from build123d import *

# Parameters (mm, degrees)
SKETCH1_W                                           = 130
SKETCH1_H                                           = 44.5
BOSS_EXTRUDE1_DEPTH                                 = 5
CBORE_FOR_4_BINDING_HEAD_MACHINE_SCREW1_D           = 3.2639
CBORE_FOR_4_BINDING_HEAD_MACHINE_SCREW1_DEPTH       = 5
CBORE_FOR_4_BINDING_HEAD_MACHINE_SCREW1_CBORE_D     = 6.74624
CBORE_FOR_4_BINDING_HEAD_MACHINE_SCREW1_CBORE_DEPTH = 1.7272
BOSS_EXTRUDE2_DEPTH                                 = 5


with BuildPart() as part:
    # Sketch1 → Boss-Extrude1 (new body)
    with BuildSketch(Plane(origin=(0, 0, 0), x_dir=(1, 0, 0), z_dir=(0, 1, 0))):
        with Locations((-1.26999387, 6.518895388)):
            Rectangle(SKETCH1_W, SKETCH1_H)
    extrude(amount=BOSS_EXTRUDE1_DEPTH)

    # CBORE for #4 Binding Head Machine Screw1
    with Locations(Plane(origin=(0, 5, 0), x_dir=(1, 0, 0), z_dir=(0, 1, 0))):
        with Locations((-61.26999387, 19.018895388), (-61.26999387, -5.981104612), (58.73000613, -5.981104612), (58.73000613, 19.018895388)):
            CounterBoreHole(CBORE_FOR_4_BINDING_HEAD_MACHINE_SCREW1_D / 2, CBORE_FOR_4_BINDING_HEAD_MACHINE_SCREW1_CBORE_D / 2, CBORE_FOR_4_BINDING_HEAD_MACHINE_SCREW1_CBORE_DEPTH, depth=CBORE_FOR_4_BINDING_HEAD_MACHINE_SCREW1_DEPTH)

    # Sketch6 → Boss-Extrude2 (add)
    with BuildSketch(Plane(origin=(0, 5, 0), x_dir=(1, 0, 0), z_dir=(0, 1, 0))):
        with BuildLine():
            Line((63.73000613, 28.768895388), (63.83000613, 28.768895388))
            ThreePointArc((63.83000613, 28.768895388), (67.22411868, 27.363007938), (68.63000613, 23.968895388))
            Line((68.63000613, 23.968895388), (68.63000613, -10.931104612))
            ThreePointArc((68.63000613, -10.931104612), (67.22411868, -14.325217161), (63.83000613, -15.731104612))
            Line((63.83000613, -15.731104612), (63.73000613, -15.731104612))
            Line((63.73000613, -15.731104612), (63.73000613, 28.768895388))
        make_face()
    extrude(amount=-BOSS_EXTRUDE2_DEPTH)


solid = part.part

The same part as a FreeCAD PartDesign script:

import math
import FreeCAD as App
import Part
import Sketcher

V = App.Vector

doc = App.newDocument("Part")
body = doc.addObject("PartDesign::Body", "Body")

# Sketch on XZ plane
sketch1 = body.newObject("Sketcher::SketchObject", "Sketch")
sketch1.AttachmentSupport = (doc.getObject("XZ_Plane"), [""])
sketch1.MapMode = "FlatFace"
sketch1.addGeometry(Part.LineSegment(V(-66, -29, 0), V(-66, 16, 0)), False)
sketch1.addGeometry(Part.LineSegment(V(-66, 16, 0), V(64, 16, 0)), False)
sketch1.addGeometry(Part.LineSegment(V(64, 16, 0), V(64, -29, 0)), False)
sketch1.addGeometry(Part.LineSegment(V(64, -29, 0), V(-66, -29, 0)), False)
sketch1.addConstraint(Sketcher.Constraint("Coincident", 0, 2, 1, 1))
sketch1.addConstraint(Sketcher.Constraint("Coincident", 1, 2, 2, 1))
sketch1.addConstraint(Sketcher.Constraint("Coincident", 2, 2, 3, 1))
sketch1.addConstraint(Sketcher.Constraint("Coincident", 3, 2, 0, 1))
sketch1.addConstraint(Sketcher.Constraint("Vertical", 0))
sketch1.addConstraint(Sketcher.Constraint("Horizontal", 1))
sketch1.addConstraint(Sketcher.Constraint("Vertical", 2))
sketch1.addConstraint(Sketcher.Constraint("Horizontal", 3))
sketch1.addConstraint(Sketcher.Constraint("DistanceX", 1, 1, 1, 2, 130.0))
sketch1.addConstraint(Sketcher.Constraint("DistanceY", 0, 1, 0, 2, 44.5))
sketch1.addConstraint(Sketcher.Constraint("DistanceX", 0, 2, -1, 1, 66.269994))
sketch1.addConstraint(Sketcher.Constraint("DistanceY", -1, 1, 0, 2, 15.731105))
pad1 = body.newObject("PartDesign::Pad", "Pad")
pad1.Profile = sketch1
pad1.Length = 5
pad1.Reversed = True

# Sketch on XZ plane
sketch2 = body.newObject("Sketcher::SketchObject", "Sketch001")
sketch2.AttachmentSupport = (doc.getObject("XZ_Plane"), [""])
sketch2.MapMode = "FlatFace"
sketch2.AttachmentOffset = App.Placement(V(0, 0, -5), App.Rotation())
sketch2.addGeometry(Part.Circle(V(-61.3, -19, 0), V(0, 0, 1), 1.6), False)
sketch2.addGeometry(Part.Circle(V(-61.3, 6, 0), V(0, 0, 1), 1.6), False)
sketch2.addGeometry(Part.Circle(V(58.7, 6, 0), V(0, 0, 1), 1.6), False)
sketch2.addGeometry(Part.Circle(V(58.7, -19, 0), V(0, 0, 1), 1.6), False)
sketch2.addConstraint(Sketcher.Constraint("Equal", 0, 1))
sketch2.addConstraint(Sketcher.Constraint("Equal", 1, 2))
sketch2.addConstraint(Sketcher.Constraint("Equal", 2, 3))
sketch2.addConstraint(Sketcher.Constraint("Horizontal", 1, 3, 2, 3))
sketch2.addConstraint(Sketcher.Constraint("Horizontal", 0, 3, 3, 3))
sketch2.addConstraint(Sketcher.Constraint("Vertical", 0, 3, 1, 3))
sketch2.addConstraint(Sketcher.Constraint("Vertical", 2, 3, 3, 3))
sketch2.addConstraint(Sketcher.Constraint("DistanceY", 0, 3, 1, 3, 25.0))
sketch2.addConstraint(Sketcher.Constraint("DistanceX", 1, 3, 2, 3, 120.0))
sketch2.addConstraint(Sketcher.Constraint("Diameter", 0, 3.2639))
sketch2.addConstraint(Sketcher.Constraint("DistanceX", 0, 3, -1, 1, 61.269994))
sketch2.addConstraint(Sketcher.Constraint("DistanceY", 0, 3, -1, 1, 19.018895))
doc.recompute()
hole = body.newObject("PartDesign::Hole", "Hole")
hole.Profile = sketch2
hole.ThreadType = "None"
hole.Diameter = 3.2639
hole.DepthType = "Dimension"
hole.Depth = 5
hole.DrillPoint = "Flat"
hole.HoleCutType = "Counterbore"
hole.HoleCutDiameter = 6.74624
hole.HoleCutDepth = 1.7272
hole.Reversed = True

# Sketch on XZ plane
sketch3 = body.newObject("Sketcher::SketchObject", "Sketch002")
sketch3.AttachmentSupport = (doc.getObject("XZ_Plane"), [""])
sketch3.MapMode = "FlatFace"
sketch3.AttachmentOffset = App.Placement(V(0, 0, -5), App.Rotation())
sketch3.addGeometry(Part.LineSegment(V(63.83, -28.77, 0), V(63.73, -28.77, 0)), False)
sketch3.addGeometry(Part.LineSegment(V(63.73, -28.77, 0), V(63.73, 15.73, 0)), False)
sketch3.addGeometry(Part.LineSegment(V(63.73, 15.73, 0), V(63.83, 15.73, 0)), False)
sketch3.addGeometry(Part.ArcOfCircle(Part.Circle(V(63.83, 10.93, 0), V(0, 0, 1), 4.8), math.radians(0), math.radians(90)), False)
sketch3.addGeometry(Part.LineSegment(V(68.63, 10.93, 0), V(68.63, -23.97, 0)), False)
sketch3.addGeometry(Part.ArcOfCircle(Part.Circle(V(63.83, -23.97, 0), V(0, 0, 1), 4.8), math.radians(-90), math.radians(0)), False)
sketch3.addConstraint(Sketcher.Constraint("Coincident", 0, 2, 1, 1))
sketch3.addConstraint(Sketcher.Constraint("Coincident", 1, 2, 2, 1))
sketch3.addConstraint(Sketcher.Constraint("Tangent", 2, 2, 3, 2))
sketch3.addConstraint(Sketcher.Constraint("Tangent", 3, 1, 4, 1))
sketch3.addConstraint(Sketcher.Constraint("Tangent", 4, 2, 5, 2))
sketch3.addConstraint(Sketcher.Constraint("Tangent", 5, 1, 0, 1))
sketch3.addConstraint(Sketcher.Constraint("Horizontal", 0))
sketch3.addConstraint(Sketcher.Constraint("Vertical", 1))
sketch3.addConstraint(Sketcher.Constraint("Horizontal", 2))
sketch3.addConstraint(Sketcher.Constraint("Vertical", 4))
sketch3.addConstraint(Sketcher.Constraint("Equal", 3, 5))
sketch3.addConstraint(Sketcher.Constraint("Radius", 3, 4.8))
sketch3.addConstraint(Sketcher.Constraint("DistanceX", 0, 2, 0, 1, 0.1))
sketch3.addConstraint(Sketcher.Constraint("DistanceY", 1, 1, 1, 2, 44.5))
sketch3.addConstraint(Sketcher.Constraint("DistanceX", -1, 1, 3, 3, 63.830006))
sketch3.addConstraint(Sketcher.Constraint("DistanceY", -1, 1, 3, 3, 10.931105))
pad2 = body.newObject("PartDesign::Pad", "Pad001")
pad2.Profile = sketch3
pad2.Length = 5

doc.recompute()
